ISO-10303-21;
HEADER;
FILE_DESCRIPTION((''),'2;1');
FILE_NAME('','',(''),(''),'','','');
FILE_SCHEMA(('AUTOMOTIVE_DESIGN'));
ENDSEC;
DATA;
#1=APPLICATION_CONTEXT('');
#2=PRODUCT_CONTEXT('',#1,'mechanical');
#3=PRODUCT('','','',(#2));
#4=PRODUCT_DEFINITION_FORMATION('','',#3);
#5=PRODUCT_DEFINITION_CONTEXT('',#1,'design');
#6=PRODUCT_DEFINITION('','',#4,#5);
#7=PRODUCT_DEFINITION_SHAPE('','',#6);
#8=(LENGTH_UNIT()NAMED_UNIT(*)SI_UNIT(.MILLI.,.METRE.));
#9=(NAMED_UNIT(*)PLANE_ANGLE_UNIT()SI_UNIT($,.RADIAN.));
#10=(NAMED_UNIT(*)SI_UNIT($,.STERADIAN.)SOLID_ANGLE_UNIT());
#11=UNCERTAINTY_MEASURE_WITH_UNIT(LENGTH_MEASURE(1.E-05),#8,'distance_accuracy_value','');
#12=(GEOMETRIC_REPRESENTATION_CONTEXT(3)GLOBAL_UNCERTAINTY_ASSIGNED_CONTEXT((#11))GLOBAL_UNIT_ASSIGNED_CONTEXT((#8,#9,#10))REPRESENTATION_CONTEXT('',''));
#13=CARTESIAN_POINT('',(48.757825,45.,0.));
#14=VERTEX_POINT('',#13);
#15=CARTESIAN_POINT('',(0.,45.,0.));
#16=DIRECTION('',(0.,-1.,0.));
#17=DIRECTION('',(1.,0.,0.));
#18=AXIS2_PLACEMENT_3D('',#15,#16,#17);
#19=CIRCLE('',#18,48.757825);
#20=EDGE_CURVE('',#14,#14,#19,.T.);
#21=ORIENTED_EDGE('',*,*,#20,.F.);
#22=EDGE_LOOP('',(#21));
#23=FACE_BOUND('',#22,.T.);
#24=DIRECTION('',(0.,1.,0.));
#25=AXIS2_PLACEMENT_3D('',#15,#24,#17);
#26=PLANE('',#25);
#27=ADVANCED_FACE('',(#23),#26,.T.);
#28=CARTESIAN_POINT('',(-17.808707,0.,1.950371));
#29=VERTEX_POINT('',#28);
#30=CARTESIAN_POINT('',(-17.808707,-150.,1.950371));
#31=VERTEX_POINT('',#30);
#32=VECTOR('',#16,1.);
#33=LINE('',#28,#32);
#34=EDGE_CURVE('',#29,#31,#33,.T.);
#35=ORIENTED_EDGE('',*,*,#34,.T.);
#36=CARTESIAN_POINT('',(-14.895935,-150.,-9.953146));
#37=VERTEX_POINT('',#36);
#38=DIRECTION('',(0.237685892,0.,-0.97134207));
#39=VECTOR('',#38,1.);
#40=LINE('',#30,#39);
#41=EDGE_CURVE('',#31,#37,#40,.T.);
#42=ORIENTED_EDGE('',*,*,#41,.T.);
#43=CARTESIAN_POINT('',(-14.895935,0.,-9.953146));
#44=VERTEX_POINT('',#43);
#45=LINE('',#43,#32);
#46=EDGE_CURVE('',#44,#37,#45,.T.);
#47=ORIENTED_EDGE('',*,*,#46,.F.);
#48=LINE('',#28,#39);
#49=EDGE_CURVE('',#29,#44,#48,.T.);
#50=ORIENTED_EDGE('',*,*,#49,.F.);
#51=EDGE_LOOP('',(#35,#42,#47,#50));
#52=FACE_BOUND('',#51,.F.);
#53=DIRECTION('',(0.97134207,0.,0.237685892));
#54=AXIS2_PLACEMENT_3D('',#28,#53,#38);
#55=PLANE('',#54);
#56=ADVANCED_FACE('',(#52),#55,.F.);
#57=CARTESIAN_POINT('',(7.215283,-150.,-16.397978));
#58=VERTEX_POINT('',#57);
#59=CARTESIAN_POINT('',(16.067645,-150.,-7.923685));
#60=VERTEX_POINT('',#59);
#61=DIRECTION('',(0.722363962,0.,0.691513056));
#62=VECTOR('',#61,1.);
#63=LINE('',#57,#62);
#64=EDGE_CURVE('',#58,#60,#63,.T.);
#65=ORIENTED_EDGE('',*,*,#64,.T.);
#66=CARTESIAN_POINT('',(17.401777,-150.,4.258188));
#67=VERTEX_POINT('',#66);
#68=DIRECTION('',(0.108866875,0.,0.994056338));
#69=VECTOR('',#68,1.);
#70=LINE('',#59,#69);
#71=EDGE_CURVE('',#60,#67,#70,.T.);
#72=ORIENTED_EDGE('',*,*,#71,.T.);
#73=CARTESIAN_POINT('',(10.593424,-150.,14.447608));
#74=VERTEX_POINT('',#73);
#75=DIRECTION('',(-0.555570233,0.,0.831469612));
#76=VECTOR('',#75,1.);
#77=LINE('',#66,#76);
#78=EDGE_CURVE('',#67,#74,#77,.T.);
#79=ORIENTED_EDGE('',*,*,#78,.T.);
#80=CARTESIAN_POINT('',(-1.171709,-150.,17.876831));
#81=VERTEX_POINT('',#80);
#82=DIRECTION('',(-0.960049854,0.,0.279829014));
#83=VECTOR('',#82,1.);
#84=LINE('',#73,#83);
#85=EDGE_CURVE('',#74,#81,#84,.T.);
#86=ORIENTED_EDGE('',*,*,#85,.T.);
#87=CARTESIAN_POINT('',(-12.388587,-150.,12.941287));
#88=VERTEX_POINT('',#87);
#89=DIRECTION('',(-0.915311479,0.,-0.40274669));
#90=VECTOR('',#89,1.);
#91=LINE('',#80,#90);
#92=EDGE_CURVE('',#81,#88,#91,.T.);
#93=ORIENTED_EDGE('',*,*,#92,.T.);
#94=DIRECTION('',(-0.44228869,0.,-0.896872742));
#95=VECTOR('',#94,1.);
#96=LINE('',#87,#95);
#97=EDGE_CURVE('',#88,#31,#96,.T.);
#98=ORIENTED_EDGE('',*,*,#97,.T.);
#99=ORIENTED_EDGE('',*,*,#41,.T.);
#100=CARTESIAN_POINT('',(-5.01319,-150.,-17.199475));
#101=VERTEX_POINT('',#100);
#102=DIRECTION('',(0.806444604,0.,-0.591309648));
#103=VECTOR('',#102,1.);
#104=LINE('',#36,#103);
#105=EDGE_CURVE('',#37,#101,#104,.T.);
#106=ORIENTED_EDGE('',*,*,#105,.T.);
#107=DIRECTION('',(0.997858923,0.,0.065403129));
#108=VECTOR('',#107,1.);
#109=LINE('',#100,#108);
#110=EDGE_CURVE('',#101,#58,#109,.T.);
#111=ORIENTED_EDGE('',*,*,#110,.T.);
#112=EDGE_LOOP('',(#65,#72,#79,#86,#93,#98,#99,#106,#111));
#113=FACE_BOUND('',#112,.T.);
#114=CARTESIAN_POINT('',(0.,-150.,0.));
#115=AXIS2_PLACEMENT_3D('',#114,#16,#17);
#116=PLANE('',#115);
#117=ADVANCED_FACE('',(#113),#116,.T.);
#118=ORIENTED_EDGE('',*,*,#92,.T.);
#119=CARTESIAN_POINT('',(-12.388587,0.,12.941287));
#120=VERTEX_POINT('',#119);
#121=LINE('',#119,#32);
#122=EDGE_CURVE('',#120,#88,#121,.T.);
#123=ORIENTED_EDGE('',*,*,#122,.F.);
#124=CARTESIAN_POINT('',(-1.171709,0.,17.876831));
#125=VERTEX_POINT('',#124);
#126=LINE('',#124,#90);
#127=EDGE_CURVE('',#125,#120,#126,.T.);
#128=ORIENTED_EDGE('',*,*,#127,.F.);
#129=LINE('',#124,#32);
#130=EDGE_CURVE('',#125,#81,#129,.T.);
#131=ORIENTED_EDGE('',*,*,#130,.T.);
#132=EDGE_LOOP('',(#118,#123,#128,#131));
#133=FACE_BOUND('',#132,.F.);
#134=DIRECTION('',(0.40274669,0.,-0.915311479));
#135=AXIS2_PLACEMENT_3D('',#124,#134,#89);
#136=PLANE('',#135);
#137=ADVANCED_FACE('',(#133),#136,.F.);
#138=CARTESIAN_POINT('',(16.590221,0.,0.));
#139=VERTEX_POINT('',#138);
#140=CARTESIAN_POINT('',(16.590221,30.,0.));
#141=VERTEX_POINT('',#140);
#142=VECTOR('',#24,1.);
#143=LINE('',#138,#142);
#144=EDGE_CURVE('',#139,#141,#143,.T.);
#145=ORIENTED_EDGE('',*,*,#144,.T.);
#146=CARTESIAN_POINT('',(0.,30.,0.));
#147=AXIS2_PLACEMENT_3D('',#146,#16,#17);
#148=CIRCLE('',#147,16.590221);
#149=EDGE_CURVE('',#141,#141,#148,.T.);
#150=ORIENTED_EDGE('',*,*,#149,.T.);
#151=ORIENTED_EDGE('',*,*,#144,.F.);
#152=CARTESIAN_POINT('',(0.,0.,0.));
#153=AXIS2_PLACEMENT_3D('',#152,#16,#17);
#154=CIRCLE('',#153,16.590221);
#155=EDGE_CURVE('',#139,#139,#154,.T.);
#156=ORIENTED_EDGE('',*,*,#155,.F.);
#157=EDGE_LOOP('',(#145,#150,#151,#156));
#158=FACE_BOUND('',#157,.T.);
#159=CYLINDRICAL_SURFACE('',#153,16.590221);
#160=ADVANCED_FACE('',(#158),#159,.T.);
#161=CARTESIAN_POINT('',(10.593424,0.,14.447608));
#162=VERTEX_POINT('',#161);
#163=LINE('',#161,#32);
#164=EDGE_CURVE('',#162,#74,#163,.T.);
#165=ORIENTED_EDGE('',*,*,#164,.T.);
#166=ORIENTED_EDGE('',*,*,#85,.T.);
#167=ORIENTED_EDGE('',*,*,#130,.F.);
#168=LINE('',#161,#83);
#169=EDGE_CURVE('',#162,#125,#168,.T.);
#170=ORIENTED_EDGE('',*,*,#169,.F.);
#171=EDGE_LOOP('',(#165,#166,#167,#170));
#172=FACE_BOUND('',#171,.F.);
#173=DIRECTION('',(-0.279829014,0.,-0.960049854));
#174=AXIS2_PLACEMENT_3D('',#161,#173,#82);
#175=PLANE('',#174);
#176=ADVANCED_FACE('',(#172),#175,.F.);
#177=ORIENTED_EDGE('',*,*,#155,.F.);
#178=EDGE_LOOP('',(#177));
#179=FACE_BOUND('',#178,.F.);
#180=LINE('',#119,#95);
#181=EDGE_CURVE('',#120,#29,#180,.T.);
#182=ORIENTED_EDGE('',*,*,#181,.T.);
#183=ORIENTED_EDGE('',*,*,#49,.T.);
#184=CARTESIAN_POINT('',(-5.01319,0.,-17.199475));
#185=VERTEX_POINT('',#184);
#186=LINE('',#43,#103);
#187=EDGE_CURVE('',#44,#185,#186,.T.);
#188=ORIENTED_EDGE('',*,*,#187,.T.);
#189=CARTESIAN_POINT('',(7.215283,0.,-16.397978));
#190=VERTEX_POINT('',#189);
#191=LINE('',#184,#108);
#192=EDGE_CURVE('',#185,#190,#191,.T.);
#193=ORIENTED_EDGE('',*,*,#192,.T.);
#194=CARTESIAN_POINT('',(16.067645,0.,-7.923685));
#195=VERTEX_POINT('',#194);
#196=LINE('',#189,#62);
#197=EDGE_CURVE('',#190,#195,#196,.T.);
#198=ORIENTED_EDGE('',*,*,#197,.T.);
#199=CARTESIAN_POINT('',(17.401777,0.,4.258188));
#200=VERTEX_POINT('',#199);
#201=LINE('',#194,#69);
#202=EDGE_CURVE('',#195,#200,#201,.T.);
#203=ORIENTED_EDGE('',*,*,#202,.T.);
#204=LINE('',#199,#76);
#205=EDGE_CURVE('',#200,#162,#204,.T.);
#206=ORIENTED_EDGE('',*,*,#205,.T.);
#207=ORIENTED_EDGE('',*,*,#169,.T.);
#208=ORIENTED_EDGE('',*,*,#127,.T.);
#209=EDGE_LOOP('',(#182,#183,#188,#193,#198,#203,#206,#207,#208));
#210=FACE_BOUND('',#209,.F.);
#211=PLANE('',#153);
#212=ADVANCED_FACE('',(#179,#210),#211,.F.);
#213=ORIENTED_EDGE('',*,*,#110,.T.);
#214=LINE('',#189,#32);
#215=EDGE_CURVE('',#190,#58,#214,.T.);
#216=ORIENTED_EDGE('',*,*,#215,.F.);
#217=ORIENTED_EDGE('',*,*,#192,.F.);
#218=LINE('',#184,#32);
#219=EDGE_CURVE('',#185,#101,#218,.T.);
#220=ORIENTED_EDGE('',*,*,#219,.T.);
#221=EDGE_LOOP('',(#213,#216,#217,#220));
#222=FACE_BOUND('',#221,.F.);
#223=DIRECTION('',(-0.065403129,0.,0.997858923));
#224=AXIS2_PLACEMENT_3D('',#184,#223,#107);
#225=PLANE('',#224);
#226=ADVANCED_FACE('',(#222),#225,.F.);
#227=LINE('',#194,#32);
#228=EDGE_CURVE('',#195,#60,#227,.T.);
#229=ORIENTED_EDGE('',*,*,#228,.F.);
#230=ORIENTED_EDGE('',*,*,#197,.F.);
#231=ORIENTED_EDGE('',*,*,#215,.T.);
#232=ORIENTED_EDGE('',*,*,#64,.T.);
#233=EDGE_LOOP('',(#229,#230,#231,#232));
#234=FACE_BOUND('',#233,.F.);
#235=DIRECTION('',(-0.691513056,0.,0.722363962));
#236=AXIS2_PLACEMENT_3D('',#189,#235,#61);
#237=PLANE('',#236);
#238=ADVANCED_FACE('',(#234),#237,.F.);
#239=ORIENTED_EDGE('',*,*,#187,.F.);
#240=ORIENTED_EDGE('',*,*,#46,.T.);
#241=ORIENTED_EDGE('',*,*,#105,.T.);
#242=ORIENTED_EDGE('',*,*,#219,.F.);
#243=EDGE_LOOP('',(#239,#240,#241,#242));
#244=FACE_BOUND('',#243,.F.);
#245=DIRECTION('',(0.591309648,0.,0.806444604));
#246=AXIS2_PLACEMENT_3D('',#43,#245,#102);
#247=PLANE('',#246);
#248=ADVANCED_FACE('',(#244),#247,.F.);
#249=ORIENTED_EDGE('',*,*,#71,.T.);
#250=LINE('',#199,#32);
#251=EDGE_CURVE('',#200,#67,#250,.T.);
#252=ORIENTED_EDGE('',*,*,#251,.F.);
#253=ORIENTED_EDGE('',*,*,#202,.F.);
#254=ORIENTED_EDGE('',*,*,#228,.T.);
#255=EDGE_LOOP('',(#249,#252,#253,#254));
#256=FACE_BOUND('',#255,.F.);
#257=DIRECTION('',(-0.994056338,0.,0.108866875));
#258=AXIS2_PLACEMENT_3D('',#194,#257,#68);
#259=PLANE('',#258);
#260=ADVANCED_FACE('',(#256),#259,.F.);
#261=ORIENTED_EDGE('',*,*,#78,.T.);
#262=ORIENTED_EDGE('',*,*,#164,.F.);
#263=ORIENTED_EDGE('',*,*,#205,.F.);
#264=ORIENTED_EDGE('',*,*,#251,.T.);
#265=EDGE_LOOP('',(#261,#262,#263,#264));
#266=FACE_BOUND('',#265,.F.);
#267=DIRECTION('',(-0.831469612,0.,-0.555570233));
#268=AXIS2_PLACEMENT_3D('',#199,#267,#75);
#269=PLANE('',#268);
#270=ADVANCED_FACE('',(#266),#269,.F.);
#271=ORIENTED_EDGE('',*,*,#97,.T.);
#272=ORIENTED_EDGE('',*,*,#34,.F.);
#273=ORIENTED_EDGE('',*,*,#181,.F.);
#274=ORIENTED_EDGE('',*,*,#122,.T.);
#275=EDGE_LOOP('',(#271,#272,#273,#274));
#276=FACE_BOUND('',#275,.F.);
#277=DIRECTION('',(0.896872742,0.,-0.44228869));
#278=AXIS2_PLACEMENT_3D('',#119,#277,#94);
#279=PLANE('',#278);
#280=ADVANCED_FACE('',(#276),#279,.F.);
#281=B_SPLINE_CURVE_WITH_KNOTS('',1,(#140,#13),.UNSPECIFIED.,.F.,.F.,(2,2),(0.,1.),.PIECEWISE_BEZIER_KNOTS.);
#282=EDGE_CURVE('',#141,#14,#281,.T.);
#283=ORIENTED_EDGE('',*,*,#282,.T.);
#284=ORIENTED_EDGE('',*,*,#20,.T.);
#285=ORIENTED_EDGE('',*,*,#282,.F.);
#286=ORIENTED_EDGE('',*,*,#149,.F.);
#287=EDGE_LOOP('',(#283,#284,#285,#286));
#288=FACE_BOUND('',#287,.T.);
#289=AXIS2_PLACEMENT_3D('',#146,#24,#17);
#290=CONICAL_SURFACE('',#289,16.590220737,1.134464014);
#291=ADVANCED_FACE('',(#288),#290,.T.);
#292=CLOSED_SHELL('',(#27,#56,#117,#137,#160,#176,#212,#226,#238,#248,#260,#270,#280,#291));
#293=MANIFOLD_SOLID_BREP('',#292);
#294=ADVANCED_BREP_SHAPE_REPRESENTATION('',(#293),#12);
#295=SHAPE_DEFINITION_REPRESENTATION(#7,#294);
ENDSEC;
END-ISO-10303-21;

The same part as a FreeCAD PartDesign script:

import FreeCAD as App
import Part
import Sketcher
Q = App.Units.Quantity

doc = App.newDocument("Part")
body = doc.addObject("PartDesign::Body", "Body")

# Sketch on XZ plane
sketch1 = body.newObject("Sketcher::SketchObject", "Sketch")
sketch1.AttachmentSupport = (doc.getObject("XZ_Plane"), [""])
sketch1.MapMode = "FlatFace"
sketch1.addGeometry([
    Part.LineSegment(App.Vector(-5.01319, -17.199475, 0), App.Vector(7.215283, -16.397978, 0)),  # 0
    Part.LineSegment(App.Vector(7.215283, -16.397978, 0), App.Vector(16.067645, -7.923685, 0)),  # 1
    Part.LineSegment(App.Vector(16.067645, -7.923685, 0), App.Vector(17.401777, 4.258188, 0)),  # 2
    Part.LineSegment(App.Vector(17.401777, 4.258188, 0), App.Vector(10.593424, 14.447608, 0)),  # 3
    Part.LineSegment(App.Vector(10.593424, 14.447608, 0), App.Vector(-1.171709, 17.876831, 0)),  # 4
    Part.LineSegment(App.Vector(-1.171709, 17.876831, 0), App.Vector(-12.388587, 12.941287, 0)),  # 5
    Part.LineSegment(App.Vector(-12.388587, 12.941287, 0), App.Vector(-17.808707, 1.950371, 0)),  # 6
    Part.LineSegment(App.Vector(-17.808707, 1.950371, 0), App.Vector(-14.895935, -9.953146, 0)),  # 7
    Part.LineSegment(App.Vector(-14.895935, -9.953146, 0), App.Vector(-5.01319, -17.199475, 0)),  # 8
], False)
sketch1.addConstraint([
    Sketcher.Constraint("Coincident", 0, 2, 1, 1),
    Sketcher.Constraint("Coincident", 1, 2, 2, 1),
    Sketcher.Constraint("Coincident", 2, 2, 3, 1),
    Sketcher.Constraint("Coincident", 3, 2, 4, 1),
    Sketcher.Constraint("Coincident", 4, 2, 5, 1),
    Sketcher.Constraint("Coincident", 5, 2, 6, 1),
    Sketcher.Constraint("Coincident", 6, 2, 7, 1),
    Sketcher.Constraint("Coincident", 7, 2, 8, 1),
    Sketcher.Constraint("Coincident", 8, 2, 0, 1),
    Sketcher.Constraint("Equal", 0, 1),
    Sketcher.Constraint("Equal", 1, 2),
    Sketcher.Constraint("Equal", 2, 3),
    Sketcher.Constraint("Equal", 3, 4),
    Sketcher.Constraint("Equal", 4, 5),
    Sketcher.Constraint("Equal", 5, 6),
    Sketcher.Constraint("Equal", 6, 7),
    Sketcher.Constraint("Equal", 7, 8),
    Sketcher.Constraint("Angle", 0, Q("3.75 deg")),
    Sketcher.Constraint("Angle", 1, Q("43.75 deg")),
    Sketcher.Constraint("Angle", 2, Q("83.75 deg")),
    Sketcher.Constraint("Angle", 3, Q("123.75 deg")),
    Sketcher.Constraint("Angle", 4, Q("163.75 deg")),
    Sketcher.Constraint("Angle", 5, Q("-156.25 deg")),
    Sketcher.Constraint("Angle", 6, Q("-116.25 deg")),
    Sketcher.Constraint("DistanceY", 2, 2, 5, 2, Q("8.683099 mm")),
    Sketcher.Constraint("DistanceY", 0, 2, -1, 1, Q("16.397978 mm")),
    Sketcher.Constraint("DistanceX", 4, 2, -1, 1, Q("1.171709 mm")),
])
pad1 = body.newObject("PartDesign::Pad", "Pad")
pad1.Profile = sketch1
pad1.Length = 150

# Sketch on XZ plane
sketch2 = body.newObject("Sketcher::SketchObject", "Sketch001")
sketch2.AttachmentSupport = (doc.getObject("XZ_Plane"), [""])
sketch2.MapMode = "FlatFace"
sketch2.addGeometry(Part.Circle(App.Vector(0, 0, 0), App.Vector(0, 0, 1), 16.590221), False)
sketch2.addConstraint([
    Sketcher.Constraint("Coincident", 0, 3, -1, 1),
    Sketcher.Constraint("Diameter", 0, Q("33.180441 mm")),
])
pad2 = body.newObject("PartDesign::Pad", "Pad001")
pad2.Profile = sketch2
pad2.Length = 30
pad2.Reversed = True

# Sketch on XZ plane
sketch3 = body.newObject("Sketcher::SketchObject", "Sketch002")
sketch3.AttachmentSupport = (doc.getObject("XZ_Plane"), [""])
sketch3.MapMode = "FlatFace"
sketch3.AttachmentOffset = App.Placement(App.Vector(0, 0, -30), App.Rotation())
sketch3.addGeometry(Part.Circle(App.Vector(0, 0, 0), App.Vector(0, 0, 1), 16.590221), False)
sketch3.addConstraint([
    Sketcher.Constraint("Coincident", 0, 3, -1, 1),
    Sketcher.Constraint("Diameter", 0, Q("33.180441 mm")),
])
pad3 = body.newObject("PartDesign::Pad", "Pad002")
pad3.Profile = sketch3
pad3.Length = 15
pad3.Reversed = True
pad3.TaperAngle = 65

doc.recompute()
